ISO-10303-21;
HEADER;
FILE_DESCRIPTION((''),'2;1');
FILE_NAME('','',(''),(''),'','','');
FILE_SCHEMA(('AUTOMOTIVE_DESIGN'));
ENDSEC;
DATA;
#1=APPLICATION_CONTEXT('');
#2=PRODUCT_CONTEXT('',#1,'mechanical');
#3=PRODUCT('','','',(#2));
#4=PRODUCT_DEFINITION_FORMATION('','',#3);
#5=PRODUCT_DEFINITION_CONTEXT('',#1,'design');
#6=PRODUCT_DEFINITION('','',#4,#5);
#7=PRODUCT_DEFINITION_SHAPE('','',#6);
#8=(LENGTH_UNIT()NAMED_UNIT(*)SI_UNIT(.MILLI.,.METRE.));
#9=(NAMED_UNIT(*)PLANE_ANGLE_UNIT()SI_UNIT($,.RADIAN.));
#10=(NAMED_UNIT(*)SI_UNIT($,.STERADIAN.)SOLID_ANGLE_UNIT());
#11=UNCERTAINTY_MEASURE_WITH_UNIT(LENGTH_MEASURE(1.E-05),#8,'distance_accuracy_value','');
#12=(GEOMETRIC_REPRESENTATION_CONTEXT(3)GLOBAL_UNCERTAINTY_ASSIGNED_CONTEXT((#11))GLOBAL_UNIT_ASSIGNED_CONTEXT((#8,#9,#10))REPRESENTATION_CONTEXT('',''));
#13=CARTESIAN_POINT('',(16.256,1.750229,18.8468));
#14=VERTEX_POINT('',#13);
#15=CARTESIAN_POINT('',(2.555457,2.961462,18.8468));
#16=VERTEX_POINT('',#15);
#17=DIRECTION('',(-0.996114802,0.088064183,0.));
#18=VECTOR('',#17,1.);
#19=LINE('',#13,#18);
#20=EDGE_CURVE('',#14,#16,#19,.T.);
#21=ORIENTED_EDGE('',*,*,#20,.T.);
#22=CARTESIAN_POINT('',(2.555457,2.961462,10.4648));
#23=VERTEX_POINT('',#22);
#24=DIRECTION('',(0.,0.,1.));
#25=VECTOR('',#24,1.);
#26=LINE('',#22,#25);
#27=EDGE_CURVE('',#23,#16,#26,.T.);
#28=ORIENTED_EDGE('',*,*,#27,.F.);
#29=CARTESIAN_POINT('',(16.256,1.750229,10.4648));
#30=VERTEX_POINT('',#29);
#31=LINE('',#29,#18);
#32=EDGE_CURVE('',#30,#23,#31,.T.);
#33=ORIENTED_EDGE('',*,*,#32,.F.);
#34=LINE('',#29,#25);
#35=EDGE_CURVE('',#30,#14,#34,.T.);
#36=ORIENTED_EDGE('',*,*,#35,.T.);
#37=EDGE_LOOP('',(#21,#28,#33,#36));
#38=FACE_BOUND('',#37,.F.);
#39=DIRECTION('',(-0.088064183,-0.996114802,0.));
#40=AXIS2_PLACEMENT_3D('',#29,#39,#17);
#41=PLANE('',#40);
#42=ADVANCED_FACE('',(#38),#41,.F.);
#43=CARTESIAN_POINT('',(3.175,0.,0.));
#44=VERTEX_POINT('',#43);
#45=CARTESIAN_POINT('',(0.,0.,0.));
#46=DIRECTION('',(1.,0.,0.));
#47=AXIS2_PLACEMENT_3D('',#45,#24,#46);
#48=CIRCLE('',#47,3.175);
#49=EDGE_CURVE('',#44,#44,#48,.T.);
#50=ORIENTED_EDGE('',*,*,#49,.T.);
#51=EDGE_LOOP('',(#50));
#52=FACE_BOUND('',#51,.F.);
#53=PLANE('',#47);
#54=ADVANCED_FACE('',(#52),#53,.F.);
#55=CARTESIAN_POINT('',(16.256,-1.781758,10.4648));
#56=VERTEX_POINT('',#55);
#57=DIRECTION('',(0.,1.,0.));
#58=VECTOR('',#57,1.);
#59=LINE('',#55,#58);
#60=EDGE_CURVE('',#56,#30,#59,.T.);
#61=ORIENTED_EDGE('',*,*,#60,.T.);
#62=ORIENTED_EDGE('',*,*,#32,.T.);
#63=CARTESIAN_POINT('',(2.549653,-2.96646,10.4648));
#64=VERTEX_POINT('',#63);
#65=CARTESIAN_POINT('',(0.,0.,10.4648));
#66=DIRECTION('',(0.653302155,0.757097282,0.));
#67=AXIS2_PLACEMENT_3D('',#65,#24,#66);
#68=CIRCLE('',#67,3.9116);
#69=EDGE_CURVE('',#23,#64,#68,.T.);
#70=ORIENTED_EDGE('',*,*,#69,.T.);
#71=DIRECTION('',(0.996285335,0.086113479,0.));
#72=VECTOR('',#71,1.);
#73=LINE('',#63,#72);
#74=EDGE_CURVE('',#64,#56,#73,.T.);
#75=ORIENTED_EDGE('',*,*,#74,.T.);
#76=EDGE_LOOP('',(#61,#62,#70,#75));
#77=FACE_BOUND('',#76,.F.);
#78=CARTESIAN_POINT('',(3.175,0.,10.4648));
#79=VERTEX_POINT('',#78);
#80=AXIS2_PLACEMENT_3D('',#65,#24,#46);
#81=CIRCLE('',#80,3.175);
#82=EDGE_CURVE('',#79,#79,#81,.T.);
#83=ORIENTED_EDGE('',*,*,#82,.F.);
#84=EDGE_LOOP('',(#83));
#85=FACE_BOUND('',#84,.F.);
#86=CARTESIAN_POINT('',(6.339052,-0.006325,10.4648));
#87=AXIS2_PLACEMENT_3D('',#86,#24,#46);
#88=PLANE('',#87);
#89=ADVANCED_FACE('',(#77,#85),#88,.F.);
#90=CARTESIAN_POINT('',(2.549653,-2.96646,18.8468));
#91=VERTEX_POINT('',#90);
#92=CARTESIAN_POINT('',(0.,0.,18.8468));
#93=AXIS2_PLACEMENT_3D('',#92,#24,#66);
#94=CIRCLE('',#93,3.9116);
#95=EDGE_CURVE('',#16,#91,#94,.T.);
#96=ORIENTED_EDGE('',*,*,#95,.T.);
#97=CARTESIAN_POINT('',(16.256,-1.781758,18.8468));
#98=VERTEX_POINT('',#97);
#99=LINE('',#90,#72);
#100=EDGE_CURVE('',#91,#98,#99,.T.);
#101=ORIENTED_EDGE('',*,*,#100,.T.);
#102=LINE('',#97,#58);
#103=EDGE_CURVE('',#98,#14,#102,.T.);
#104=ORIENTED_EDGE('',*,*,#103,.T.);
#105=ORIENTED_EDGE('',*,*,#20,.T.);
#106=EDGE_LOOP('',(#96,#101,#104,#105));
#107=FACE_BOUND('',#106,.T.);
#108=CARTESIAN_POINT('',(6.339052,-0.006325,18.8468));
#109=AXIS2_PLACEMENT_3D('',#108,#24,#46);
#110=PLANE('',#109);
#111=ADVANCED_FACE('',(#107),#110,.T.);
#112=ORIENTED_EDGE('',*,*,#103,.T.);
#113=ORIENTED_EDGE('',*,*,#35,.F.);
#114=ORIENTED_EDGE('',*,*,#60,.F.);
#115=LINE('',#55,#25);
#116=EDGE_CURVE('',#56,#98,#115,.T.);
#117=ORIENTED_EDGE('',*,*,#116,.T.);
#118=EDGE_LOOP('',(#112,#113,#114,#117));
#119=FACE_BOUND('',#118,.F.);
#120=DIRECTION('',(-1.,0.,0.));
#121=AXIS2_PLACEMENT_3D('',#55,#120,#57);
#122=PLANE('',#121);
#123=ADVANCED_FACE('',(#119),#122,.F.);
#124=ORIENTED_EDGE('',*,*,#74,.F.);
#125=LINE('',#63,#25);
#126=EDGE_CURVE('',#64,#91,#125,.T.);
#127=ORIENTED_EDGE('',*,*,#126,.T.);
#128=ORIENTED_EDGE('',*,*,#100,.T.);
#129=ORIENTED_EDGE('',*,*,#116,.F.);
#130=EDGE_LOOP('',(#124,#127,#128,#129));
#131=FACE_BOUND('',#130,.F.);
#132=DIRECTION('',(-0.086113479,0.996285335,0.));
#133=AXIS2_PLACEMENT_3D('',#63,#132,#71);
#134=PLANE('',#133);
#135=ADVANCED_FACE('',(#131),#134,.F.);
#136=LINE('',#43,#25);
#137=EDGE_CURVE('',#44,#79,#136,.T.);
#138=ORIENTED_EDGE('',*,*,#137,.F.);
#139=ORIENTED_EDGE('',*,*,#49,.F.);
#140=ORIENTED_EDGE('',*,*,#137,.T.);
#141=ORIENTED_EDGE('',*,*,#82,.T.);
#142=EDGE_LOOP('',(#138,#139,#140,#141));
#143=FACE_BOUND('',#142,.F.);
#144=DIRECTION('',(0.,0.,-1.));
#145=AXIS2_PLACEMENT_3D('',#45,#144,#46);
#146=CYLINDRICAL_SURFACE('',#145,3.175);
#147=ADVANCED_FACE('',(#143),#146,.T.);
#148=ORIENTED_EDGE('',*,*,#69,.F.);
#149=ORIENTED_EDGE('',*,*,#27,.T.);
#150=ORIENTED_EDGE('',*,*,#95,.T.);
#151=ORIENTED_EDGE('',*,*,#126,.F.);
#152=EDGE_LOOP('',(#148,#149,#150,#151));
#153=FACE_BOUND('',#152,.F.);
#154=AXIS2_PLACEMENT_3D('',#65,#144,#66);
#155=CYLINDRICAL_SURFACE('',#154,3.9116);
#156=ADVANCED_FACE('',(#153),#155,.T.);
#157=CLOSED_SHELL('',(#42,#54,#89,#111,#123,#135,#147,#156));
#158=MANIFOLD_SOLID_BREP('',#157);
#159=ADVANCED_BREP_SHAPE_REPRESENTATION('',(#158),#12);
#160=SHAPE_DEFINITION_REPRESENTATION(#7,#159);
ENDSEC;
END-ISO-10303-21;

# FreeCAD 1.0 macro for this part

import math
import FreeCAD as App
import Part
import Sketcher

V = App.Vector
Q = App.Units.Quantity

doc = App.newDocument("Part")
body = doc.addObject("PartDesign::Body", "Body")

sketch1 = body.newObject("Sketcher::SketchObject", "Sketch")
sketch1.AttachmentSupport = (doc.getObject("XY_Plane"), [""])
sketch1.MapMode = "FlatFace"
sketch1.addGeometry(Part.Circle(V(0, 0, 0), V(0, 0, 1), 3.2), False)
sketch1.addConstraint([
    Sketcher.Constraint("Coincident", 0, 3, -1, 1),
    Sketcher.Constraint("Diameter", 0, Q("0.25 in")),
])
pad1 = body.newObject("PartDesign::Pad", "Pad")
pad1.Profile = sketch1
pad1.Length = Q("0.412 in")

sketch2 = body.newObject("Sketcher::SketchObject", "Sketch001")
sketch2.AttachmentSupport = (doc.getObject("XY_Plane"), [""])
sketch2.MapMode = "FlatFace"
sketch2.AttachmentOffset = App.Placement(V(0, 0, 0.412 * 25.4), App.Rotation())
sketch2.addGeometry([
    Part.LineSegment(V(16.3, 1.8, 0), V(2.6, 3, 0)),
    Part.ArcOfCircle(Part.Circle(V(0, 0, 0), V(0, 0, 1), 3.9), math.radians(49), math.radians(311)),
    Part.LineSegment(V(2.5, -3, 0), V(16.3, -1.8, 0)),
    Part.LineSegment(V(16.3, -1.8, 0), V(16.3, 1.8, 0)),
], False)
sketch2.addConstraint([
    Sketcher.Constraint("Coincident", 0, 2, 1, 1),
    Sketcher.Constraint("Coincident", 1, 2, 2, 1),
    Sketcher.Constraint("Coincident", 2, 2, 3, 1),
    Sketcher.Constraint("Coincident", 3, 2, 0, 1),
    Sketcher.Constraint("Vertical", 3),
    Sketcher.Constraint("Coincident", 1, 3, -1, 1),
    Sketcher.Constraint("Radius", 1, Q("0.154 in")),
    Sketcher.Constraint("DistanceX", -1, 1, 2, 2, Q("0.64 in")),
    Sketcher.Constraint("DistanceY", 1, 2, 2, 2, 1.184702),
    Sketcher.Constraint("Distance", 0, 13.75398),
    Sketcher.Constraint("Distance", 2, 13.757451),
    Sketcher.Constraint("DistanceY", 3, 1, 3, 2, 3.531987),
])
pad2 = body.newObject("PartDesign::Pad", "Pad001")
pad2.Profile = sketch2
pad2.Length = Q("0.33 in")

doc.recompute()
